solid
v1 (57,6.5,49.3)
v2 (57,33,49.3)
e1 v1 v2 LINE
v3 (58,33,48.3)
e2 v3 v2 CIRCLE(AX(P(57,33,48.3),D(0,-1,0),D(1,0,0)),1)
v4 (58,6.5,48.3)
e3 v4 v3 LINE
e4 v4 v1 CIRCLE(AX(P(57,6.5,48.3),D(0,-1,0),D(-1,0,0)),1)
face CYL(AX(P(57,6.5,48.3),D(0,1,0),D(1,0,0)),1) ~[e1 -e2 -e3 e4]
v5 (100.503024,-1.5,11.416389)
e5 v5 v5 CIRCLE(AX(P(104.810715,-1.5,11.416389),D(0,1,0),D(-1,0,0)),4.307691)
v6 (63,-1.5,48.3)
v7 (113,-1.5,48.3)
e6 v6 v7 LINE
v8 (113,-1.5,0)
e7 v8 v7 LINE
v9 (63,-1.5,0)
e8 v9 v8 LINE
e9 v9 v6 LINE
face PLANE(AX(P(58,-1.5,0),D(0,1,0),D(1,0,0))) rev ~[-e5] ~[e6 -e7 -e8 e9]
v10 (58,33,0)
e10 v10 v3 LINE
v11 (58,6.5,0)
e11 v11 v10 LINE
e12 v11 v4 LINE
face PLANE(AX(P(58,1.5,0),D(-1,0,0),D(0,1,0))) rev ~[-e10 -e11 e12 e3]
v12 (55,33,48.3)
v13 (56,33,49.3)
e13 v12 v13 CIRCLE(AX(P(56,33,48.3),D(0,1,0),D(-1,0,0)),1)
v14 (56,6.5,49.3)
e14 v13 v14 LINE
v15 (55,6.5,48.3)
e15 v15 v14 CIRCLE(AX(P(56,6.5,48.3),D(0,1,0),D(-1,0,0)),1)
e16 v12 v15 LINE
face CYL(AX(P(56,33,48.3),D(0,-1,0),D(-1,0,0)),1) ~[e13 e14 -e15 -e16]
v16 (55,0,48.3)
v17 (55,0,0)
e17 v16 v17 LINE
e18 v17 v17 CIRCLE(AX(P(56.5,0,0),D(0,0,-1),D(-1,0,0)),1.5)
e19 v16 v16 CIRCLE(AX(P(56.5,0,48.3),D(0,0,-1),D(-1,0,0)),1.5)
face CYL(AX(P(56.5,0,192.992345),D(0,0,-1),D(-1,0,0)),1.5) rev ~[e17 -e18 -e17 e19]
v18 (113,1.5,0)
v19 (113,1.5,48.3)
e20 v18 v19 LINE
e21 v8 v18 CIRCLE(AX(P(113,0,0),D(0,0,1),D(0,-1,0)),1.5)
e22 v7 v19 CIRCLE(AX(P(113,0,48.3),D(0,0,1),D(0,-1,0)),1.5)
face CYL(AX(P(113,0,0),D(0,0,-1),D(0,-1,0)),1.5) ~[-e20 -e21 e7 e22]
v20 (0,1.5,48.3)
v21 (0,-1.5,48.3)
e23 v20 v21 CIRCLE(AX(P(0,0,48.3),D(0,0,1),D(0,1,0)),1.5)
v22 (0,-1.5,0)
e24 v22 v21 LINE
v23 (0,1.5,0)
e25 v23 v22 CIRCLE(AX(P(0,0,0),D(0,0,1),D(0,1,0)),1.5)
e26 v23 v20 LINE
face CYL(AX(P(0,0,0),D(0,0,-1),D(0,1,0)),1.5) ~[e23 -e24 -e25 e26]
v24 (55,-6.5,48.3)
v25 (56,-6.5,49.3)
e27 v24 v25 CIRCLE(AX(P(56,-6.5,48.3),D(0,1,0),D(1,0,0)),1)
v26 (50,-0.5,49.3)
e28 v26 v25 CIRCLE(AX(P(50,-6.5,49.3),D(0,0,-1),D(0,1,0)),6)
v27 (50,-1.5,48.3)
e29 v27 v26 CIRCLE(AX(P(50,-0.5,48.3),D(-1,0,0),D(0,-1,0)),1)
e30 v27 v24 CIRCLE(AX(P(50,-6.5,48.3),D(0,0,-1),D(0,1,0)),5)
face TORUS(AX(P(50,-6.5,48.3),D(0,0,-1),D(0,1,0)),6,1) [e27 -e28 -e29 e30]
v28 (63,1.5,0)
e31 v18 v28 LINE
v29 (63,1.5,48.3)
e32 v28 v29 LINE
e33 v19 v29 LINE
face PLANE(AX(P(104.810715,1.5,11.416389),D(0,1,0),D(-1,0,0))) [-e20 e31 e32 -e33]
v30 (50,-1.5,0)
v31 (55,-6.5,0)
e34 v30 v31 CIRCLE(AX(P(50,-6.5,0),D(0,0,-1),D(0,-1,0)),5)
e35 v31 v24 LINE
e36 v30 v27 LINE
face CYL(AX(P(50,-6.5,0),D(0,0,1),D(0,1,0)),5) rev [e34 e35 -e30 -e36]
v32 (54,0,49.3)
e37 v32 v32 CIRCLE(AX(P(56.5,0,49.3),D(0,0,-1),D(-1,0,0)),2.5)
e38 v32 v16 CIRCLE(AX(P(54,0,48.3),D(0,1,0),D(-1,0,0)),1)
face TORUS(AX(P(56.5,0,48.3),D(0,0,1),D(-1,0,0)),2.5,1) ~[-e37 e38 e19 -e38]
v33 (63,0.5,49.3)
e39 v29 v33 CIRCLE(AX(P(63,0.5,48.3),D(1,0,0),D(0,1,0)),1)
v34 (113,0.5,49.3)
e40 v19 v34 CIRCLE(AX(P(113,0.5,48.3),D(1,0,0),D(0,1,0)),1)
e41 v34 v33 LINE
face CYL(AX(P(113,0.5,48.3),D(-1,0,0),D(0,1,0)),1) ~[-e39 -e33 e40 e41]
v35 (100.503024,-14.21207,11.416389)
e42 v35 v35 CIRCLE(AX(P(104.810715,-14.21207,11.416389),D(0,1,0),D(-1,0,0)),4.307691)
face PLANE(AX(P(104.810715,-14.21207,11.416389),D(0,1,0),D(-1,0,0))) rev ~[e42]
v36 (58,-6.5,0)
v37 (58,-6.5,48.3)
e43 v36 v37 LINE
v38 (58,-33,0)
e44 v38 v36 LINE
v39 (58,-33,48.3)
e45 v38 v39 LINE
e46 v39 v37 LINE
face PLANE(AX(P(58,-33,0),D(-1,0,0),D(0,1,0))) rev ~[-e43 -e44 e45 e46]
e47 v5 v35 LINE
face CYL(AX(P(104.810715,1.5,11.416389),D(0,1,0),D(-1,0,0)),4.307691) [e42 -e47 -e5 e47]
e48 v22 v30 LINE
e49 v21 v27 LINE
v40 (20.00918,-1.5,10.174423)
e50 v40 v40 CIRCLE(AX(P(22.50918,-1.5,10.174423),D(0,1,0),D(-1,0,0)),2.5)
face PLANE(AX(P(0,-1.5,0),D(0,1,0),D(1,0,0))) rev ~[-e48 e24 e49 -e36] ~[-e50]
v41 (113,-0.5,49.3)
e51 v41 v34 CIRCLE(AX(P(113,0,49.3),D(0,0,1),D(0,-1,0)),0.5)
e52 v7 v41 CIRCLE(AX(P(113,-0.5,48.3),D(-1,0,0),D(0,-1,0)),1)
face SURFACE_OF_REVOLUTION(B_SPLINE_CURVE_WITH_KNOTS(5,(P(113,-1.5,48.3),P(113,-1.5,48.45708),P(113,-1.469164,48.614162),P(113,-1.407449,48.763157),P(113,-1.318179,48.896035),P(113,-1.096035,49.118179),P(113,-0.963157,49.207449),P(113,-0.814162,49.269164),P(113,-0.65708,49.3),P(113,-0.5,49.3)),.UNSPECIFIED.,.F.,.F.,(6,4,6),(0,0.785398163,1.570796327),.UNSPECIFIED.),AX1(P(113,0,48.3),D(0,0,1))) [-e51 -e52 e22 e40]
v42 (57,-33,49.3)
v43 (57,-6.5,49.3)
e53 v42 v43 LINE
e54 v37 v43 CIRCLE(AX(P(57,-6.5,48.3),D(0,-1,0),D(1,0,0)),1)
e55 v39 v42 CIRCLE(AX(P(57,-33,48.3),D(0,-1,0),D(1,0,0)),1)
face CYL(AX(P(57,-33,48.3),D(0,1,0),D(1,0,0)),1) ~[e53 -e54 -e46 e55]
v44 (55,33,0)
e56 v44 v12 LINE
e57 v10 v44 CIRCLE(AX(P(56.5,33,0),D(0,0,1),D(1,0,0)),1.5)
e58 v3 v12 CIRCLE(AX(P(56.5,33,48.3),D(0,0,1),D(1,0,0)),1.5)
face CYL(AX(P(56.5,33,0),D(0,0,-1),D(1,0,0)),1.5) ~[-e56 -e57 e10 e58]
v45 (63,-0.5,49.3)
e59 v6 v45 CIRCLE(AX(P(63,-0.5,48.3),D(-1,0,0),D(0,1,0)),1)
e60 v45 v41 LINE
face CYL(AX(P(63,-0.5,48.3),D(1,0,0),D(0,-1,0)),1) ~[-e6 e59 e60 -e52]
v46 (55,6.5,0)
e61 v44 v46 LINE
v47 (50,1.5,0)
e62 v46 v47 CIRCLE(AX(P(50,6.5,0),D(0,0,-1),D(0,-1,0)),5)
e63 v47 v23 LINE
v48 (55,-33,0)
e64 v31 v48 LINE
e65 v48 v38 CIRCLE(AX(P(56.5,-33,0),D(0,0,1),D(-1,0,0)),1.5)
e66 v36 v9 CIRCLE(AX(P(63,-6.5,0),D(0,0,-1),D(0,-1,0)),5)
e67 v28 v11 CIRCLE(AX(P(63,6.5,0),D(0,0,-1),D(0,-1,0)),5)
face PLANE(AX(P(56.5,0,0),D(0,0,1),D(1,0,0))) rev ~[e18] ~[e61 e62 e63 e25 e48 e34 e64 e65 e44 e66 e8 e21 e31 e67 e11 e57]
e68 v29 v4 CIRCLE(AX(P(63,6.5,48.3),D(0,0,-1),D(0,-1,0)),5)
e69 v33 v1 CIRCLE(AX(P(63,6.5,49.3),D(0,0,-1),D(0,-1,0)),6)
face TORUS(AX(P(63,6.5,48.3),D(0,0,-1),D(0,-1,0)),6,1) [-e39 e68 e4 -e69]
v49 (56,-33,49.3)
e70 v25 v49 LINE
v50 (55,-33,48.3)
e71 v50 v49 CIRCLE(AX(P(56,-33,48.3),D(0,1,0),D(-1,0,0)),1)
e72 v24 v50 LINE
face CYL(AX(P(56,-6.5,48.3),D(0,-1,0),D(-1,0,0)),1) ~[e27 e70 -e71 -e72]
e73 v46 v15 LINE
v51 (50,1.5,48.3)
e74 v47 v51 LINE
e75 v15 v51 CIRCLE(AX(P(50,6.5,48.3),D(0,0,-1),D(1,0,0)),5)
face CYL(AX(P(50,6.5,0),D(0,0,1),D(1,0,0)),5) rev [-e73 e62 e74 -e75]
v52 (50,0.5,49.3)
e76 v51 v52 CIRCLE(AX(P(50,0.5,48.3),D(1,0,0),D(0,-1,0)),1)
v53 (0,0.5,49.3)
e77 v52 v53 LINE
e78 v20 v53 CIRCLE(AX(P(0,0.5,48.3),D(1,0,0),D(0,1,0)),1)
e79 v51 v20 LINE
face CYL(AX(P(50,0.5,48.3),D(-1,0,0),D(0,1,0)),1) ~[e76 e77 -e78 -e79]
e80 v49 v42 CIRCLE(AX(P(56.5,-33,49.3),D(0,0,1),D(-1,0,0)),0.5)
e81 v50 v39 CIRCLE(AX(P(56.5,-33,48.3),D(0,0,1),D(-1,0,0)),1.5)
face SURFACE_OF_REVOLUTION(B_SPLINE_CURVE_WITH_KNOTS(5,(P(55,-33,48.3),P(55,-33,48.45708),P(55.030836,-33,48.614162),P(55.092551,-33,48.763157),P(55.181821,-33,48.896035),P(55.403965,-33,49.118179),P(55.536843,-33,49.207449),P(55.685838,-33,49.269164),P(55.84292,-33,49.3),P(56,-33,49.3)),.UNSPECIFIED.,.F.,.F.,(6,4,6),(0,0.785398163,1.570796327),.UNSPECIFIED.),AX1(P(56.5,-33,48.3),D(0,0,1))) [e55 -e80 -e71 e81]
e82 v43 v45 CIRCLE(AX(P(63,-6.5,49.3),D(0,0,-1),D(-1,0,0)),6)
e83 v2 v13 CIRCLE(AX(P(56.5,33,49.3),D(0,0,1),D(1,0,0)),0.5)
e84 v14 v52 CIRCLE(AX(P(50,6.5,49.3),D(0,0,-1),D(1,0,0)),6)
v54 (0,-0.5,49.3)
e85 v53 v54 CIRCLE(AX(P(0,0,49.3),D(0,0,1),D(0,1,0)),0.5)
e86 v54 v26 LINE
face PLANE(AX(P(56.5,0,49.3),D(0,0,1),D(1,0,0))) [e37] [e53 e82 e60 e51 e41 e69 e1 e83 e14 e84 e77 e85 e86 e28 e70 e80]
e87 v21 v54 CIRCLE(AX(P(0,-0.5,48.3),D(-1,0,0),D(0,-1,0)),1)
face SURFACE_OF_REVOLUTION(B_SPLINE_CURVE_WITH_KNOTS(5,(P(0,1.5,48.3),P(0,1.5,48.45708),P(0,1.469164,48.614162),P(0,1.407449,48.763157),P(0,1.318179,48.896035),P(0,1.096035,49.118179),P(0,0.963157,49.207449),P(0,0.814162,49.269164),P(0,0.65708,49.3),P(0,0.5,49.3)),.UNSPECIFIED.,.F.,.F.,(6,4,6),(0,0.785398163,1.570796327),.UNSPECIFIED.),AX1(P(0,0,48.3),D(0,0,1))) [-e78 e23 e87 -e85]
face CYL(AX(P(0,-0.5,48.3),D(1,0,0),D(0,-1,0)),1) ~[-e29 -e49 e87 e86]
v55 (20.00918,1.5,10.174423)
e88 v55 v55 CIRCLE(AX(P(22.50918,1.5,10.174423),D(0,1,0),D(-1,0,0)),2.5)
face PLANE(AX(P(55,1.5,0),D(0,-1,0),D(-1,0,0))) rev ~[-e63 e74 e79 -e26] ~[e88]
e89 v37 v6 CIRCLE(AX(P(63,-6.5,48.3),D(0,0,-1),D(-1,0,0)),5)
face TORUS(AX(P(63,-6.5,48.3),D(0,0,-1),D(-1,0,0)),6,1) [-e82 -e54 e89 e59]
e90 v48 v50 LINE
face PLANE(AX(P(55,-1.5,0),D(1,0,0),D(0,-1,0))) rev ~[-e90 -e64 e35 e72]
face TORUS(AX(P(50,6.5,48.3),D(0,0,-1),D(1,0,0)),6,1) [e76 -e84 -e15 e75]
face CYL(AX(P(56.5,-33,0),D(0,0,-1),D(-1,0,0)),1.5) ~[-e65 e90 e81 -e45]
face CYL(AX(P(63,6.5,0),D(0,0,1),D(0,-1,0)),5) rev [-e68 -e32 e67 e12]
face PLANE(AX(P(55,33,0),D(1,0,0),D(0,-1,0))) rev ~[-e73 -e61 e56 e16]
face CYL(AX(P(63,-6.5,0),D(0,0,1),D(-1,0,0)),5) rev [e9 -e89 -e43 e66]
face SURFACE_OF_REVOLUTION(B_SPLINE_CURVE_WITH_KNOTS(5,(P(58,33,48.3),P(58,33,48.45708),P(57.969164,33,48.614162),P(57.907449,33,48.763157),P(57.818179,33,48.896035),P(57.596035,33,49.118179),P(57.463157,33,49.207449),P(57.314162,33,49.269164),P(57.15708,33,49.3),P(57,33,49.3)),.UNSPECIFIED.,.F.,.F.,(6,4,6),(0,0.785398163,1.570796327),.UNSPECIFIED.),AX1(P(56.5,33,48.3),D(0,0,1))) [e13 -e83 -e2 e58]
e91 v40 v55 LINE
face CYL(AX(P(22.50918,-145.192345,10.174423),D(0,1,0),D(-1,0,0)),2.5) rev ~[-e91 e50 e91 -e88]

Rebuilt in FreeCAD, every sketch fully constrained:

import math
import FreeCAD as App
import Part
import Sketcher

V = App.Vector


def edges_at(feature, points):
    """Names of the edges that pass closest to the given points."""
    edges = feature.Shape.Edges
    near = lambda p: min(range(len(edges)), key=lambda i: edges[i].distToShape(Part.Vertex(*p))[0])
    return sorted({f"Edge{near(p) + 1}" for p in points})

doc = App.newDocument("Part")
body = doc.addObject("PartDesign::Body", "Body")

# Sketch on XY plane
sketch1 = body.newObject("Sketcher::SketchObject", "Sketch")
sketch1.AttachmentSupport = (doc.getObject("XY_Plane"), [""])
sketch1.MapMode = "FlatFace"
sketch1.addGeometry([
    Part.ArcOfCircle(Part.Circle(V(0, 0, 0), V(0, 0, 1), 1.5), math.radians(90), math.radians(270)),  # 0
    Part.LineSegment(V(0, -1.5, 0), V(55, -1.5, 0)),  # 1
    Part.LineSegment(V(55, -1.5, 0), V(55, -33, 0)),  # 2
    Part.ArcOfCircle(Part.Circle(V(56.5, -33, 0), V(0, 0, 1), 1.5), math.radians(180), math.radians(360)),  # 3
    Part.LineSegment(V(58, -33, 0), V(58, -1.5, 0)),  # 4
    Part.LineSegment(V(58, -1.5, 0), V(113, -1.5, 0)),  # 5
    Part.ArcOfCircle(Part.Circle(V(113, 0, 0), V(0, 0, 1), 1.5), math.radians(-90), math.radians(90)),  # 6
    Part.LineSegment(V(113, 1.5, 0), V(58, 1.5, 0)),  # 7
    Part.LineSegment(V(58, 1.5, 0), V(58, 33, 0)),  # 8
    Part.ArcOfCircle(Part.Circle(V(56.5, 33, 0), V(0, 0, 1), 1.5), math.radians(0), math.radians(180)),  # 9
    Part.LineSegment(V(55, 33, 0), V(55, 1.5, 0)),  # 10
    Part.LineSegment(V(55, 1.5, 0), V(0, 1.5, 0)),  # 11
], False)
sketch1.addConstraint([
    Sketcher.Constraint("Tangent", 0, 2, 1, 1),
    Sketcher.Constraint("Coincident", 1, 2, 2, 1),
    Sketcher.Constraint("Tangent", 2, 2, 3, 1),
    Sketcher.Constraint("Tangent", 3, 2, 4, 1),
    Sketcher.Constraint("Coincident", 4, 2, 5, 1),
    Sketcher.Constraint("Tangent", 5, 2, 6, 1),
    Sketcher.Constraint("Tangent", 6, 2, 7, 1),
    Sketcher.Constraint("Coincident", 7, 2, 8, 1),
    Sketcher.Constraint("Tangent", 8, 2, 9, 1),
    Sketcher.Constraint("Tangent", 9, 2, 10, 1),
    Sketcher.Constraint("Coincident", 10, 2, 11, 1),
    Sketcher.Constraint("Tangent", 11, 2, 0, 1),
    Sketcher.Constraint("Horizontal", 1),
    Sketcher.Constraint("Vertical", 2),
    Sketcher.Constraint("Vertical", 4),
    Sketcher.Constraint("Horizontal", 5),
    Sketcher.Constraint("Horizontal", 7),
    Sketcher.Constraint("Vertical", 8),
    Sketcher.Constraint("Vertical", 10),
    Sketcher.Constraint("Horizontal", 11),
    Sketcher.Constraint("Coincident", 0, 3, -1, 1),
    Sketcher.Constraint("Equal", 0, 3),
    Sketcher.Constraint("Equal", 3, 6),
    Sketcher.Constraint("Equal", 6, 9),
    Sketcher.Constraint("Symmetric", 3, 3, 9, 3, -1),
    Sketcher.Constraint("PointOnObject", 6, 3, -1),
    Sketcher.Constraint("Equal", 1, 5),
    Sketcher.Constraint("Radius", 0, 1.5),
    Sketcher.Constraint("DistanceX", 1, 1, 1, 2, 55.0),
    Sketcher.Constraint("DistanceY", 2, 2, 2, 1, 31.5),
])
pad1 = body.newObject("PartDesign::Pad", "Pad")
pad1.Profile = sketch1
pad1.Length = 49.3
doc.recompute()

fillet = body.newObject("PartDesign::Fillet", "Fillet")
fillet.Base = (pad1, edges_at(pad1, [
    (58, -1.5, 24.65),
    (55, -1.5, 24.65),
    (55, 1.5, 24.65),
    (58, 1.5, 24.65),
]))
fillet.Radius = 5

# Sketch on XY plane
sketch2 = body.newObject("Sketcher::SketchObject", "Sketch001")
sketch2.AttachmentSupport = (doc.getObject("XY_Plane"), [""])
sketch2.MapMode = "FlatFace"
sketch2.AttachmentOffset = App.Placement(V(0, 0, 49.3), App.Rotation())
sketch2.addGeometry(Part.Circle(V(56.5, 0, 0), V(0, 0, 1), 1.5), False)
sketch2.addConstraint([
    Sketcher.Constraint("PointOnObject", 0, 3, -1),
    Sketcher.Constraint("Diameter", 0, 3.0),
    Sketcher.Constraint("DistanceX", -1, 1, 0, 3, 56.5),
])
doc.recompute()
hole = body.newObject("PartDesign::Hole", "Hole")
hole.Profile = sketch2
hole.ThreadType = "None"
hole.Diameter = 3
hole.DepthType = "ThroughAll"
doc.recompute()

fillet2 = body.newObject("PartDesign::Fillet", "Fillet001")
fillet2.Base = (hole, edges_at(hole, [
    (25, -1.5, 49.3),
    (53.536, -2.964, 49.3),
    (-1.5, 0, 49.3),
    (55, -19.75, 49.3),
    (25, 1.5, 49.3),
    (56.5, -34.5, 49.3),
    (53.536, 2.964, 49.3),
    (58, -19.75, 49.3),
    (55, 19.75, 49.3),
    (59.464, -2.964, 49.3),
    (56.5, 34.5, 49.3),
    (88, -1.5, 49.3),
    (58, 19.75, 49.3),
    (114.5, 0, 49.3),
    (59.464, 2.964, 49.3),
    (88, 1.5, 49.3),
    (58, 0, 49.3),
]))
fillet2.Radius = 1

# Sketch on XZ plane
sketch3 = body.newObject("Sketcher::SketchObject", "Sketch002")
sketch3.AttachmentSupport = (doc.getObject("XZ_Plane"), [""])
sketch3.MapMode = "FlatFace"
sketch3.AttachmentOffset = App.Placement(V(0, 0, -1.5), App.Rotation())
sketch3.addGeometry(Part.Circle(V(104.8, 11.4, 0), V(0, 0, 1), 4.3), False)
sketch3.addConstraint([
    Sketcher.Constraint("Diameter", 0, 8.615382),
    Sketcher.Constraint("DistanceY", -1, 1, 0, 3, 11.416389),
    Sketcher.Constraint("DistanceX", -1, 1, 0, 3, 104.810715),
])
pad2 = body.newObject("PartDesign::Pad", "Pad001")
pad2.Profile = sketch3
pad2.Length = 15.71207

# Sketch on XZ plane
sketch4 = body.newObject("Sketcher::SketchObject", "Sketch003")
sketch4.AttachmentSupport = (doc.getObject("XZ_Plane"), [""])
sketch4.MapMode = "FlatFace"
sketch4.AttachmentOffset = App.Placement(V(0, 0, 1.5), App.Rotation())
sketch4.addGeometry(Part.Circle(V(22.5, 10.2, 0), V(0, 0, 1), 2.5), False)
sketch4.addConstraint([
    Sketcher.Constraint("Diameter", 0, 5.0),
    Sketcher.Constraint("DistanceX", -1, 1, 0, 3, 22.50918),
    Sketcher.Constraint("DistanceY", -1, 1, 0, 3, 10.174423),
])
doc.recompute()
hole2 = body.newObject("PartDesign::Hole", "Hole001")
hole2.Profile = sketch4
hole2.ThreadType = "None"
hole2.Diameter = 5
hole2.DepthType = "ThroughAll"

doc.recompute()
